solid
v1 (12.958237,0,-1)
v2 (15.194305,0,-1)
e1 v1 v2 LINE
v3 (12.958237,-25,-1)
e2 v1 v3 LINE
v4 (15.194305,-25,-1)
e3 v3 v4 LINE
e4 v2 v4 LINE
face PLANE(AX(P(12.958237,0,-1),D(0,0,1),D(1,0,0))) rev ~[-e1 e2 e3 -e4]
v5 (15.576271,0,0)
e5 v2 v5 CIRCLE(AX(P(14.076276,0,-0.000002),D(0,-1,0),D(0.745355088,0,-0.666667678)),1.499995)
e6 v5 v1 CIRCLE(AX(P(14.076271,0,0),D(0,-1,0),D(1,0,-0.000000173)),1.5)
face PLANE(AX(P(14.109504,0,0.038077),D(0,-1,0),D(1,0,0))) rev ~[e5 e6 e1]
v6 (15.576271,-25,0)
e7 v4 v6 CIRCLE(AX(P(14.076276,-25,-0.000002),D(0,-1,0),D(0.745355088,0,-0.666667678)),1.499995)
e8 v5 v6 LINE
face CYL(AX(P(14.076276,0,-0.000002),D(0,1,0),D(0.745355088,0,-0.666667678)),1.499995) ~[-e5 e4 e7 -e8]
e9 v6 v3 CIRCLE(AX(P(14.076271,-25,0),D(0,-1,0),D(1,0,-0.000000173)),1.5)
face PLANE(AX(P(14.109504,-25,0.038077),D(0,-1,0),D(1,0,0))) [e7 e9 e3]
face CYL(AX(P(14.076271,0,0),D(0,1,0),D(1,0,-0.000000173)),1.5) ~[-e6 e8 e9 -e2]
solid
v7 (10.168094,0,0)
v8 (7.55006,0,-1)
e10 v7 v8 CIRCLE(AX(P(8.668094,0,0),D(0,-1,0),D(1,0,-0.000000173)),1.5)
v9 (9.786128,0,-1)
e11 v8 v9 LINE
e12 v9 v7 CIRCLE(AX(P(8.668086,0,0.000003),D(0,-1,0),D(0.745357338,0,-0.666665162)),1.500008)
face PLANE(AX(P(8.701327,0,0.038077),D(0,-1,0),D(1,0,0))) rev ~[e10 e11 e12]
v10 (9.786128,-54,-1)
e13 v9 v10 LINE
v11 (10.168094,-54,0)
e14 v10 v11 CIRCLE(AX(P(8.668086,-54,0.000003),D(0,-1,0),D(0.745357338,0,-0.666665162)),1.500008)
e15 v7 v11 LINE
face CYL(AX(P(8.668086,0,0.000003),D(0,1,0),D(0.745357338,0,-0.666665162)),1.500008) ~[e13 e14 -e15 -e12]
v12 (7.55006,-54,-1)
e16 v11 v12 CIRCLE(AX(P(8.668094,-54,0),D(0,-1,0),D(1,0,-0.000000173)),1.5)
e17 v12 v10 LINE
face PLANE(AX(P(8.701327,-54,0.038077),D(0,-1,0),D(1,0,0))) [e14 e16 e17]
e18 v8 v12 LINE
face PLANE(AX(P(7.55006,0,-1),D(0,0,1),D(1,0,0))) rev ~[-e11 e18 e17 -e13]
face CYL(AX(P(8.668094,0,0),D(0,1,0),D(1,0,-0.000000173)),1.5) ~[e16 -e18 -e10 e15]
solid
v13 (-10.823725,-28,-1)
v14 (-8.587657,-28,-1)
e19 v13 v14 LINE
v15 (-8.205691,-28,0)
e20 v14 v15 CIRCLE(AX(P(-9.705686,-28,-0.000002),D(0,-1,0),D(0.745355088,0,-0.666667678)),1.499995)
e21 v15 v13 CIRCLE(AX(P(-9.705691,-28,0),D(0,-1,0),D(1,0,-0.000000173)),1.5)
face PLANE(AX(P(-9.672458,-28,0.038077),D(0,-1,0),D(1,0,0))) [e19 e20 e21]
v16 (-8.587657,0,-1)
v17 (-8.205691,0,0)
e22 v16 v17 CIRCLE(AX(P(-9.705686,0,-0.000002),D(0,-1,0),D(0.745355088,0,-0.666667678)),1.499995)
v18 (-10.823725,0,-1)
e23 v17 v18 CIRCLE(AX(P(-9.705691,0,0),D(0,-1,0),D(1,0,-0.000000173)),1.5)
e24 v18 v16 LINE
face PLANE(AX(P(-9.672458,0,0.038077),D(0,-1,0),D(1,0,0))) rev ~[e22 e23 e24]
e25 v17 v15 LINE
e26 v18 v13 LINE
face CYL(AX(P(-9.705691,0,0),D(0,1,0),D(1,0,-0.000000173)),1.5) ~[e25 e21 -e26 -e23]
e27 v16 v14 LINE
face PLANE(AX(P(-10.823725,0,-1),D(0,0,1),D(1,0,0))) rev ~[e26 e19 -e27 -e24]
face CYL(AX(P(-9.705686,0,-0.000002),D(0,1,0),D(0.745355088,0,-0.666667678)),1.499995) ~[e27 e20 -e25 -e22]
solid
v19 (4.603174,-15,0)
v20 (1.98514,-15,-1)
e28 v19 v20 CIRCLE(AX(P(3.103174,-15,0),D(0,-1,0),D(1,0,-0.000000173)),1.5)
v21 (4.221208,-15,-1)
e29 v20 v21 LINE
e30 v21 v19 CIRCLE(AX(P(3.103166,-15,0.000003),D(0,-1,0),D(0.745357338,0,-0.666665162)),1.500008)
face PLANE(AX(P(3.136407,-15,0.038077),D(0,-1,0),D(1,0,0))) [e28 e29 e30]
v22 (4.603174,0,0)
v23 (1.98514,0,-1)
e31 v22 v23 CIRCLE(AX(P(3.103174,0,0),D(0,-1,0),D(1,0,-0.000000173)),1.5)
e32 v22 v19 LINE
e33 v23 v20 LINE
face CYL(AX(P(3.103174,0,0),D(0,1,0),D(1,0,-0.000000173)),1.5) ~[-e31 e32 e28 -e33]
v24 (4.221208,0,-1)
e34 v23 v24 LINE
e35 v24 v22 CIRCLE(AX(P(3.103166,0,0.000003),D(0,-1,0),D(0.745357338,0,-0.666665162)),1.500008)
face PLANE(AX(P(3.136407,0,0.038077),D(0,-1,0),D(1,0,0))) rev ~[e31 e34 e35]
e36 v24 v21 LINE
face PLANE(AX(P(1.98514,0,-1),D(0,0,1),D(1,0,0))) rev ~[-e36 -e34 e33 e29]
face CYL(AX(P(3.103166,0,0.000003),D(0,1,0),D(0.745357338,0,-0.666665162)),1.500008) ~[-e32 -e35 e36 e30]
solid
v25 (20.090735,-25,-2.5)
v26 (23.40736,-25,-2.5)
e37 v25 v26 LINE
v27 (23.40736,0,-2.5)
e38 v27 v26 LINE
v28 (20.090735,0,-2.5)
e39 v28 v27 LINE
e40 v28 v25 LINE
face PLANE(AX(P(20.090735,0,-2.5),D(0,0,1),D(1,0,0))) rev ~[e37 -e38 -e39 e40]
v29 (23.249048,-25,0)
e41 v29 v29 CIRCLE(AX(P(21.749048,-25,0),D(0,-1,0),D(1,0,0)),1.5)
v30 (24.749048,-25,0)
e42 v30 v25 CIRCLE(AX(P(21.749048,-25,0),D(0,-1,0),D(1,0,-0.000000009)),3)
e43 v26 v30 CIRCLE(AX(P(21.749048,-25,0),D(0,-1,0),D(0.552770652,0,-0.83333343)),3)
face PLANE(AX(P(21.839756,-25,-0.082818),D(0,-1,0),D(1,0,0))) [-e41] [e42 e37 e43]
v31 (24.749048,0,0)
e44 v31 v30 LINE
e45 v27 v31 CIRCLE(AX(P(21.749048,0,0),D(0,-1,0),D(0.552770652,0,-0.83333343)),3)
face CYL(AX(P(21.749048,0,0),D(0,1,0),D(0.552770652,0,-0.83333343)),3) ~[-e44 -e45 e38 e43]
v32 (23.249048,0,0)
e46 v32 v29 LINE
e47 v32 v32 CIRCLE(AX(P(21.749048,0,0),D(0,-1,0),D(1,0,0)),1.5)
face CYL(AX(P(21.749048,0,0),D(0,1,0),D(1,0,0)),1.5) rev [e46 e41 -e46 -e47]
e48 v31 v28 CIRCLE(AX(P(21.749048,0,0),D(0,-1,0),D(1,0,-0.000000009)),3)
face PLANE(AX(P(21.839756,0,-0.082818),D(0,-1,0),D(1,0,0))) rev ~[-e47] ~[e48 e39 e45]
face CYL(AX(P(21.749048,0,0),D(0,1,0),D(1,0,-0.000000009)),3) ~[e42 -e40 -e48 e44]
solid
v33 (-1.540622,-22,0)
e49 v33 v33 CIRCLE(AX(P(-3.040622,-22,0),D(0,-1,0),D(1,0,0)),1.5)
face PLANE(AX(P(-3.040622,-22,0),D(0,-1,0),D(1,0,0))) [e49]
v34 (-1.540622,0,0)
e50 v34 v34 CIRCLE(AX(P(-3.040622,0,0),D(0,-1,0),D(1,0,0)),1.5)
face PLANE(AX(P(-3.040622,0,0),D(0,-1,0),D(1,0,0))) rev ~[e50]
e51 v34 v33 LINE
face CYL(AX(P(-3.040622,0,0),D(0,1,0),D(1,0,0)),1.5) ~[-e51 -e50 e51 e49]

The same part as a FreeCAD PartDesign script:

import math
import FreeCAD as App
import Part
import Sketcher

V = App.Vector

doc = App.newDocument("Part")
body = doc.addObject("PartDesign::Body", "Body")

# Sketch on XZ plane
sketch1 = doc.addObject("Sketcher::SketchObject", "Sketch")
body.addObject(sketch1)
sketch1.AttachmentSupport = (doc.XZ_Plane, [""])
sketch1.MapMode = "FlatFace"
sketch1.addGeometry([
    Part.ArcOfCircle(Part.Circle(V(-9.7, 0, 0), V(0, 0, 1), 1.5), math.radians(-42), math.radians(0)),
    Part.ArcOfCircle(Part.Circle(V(-9.7, 0, 0), V(0, 0, 1), 1.5), math.radians(0), math.radians(222)),
    Part.LineSegment(V(-10.8, -1, 0), V(-8.6, -1, 0)),
], False)
sketch1.addConstraint([
    Sketcher.Constraint("Tangent", 0, 2, 1, 1),
    Sketcher.Constraint("Coincident", 1, 2, 2, 1),
    Sketcher.Constraint("Coincident", 2, 2, 0, 1),
    Sketcher.Constraint("Horizontal", 2),
    Sketcher.Constraint("PointOnObject", 1, 3, -1),
    Sketcher.Constraint("PointOnObject", 0, 2, -1),
    Sketcher.Constraint("Radius", 1, 1.5),
    Sketcher.Constraint("DistanceY", 1, 2, -1, 1, 1.0),
    Sketcher.Constraint("Radius", 0, 1.499995),
    Sketcher.Constraint("DistanceX", 1, 3, -1, 1, 9.705691),
])
pad1 = doc.addObject("PartDesign::Pad", "Pad")
body.addObject(pad1)
pad1.Profile = sketch1
pad1.Length = 28
body2 = doc.addObject("PartDesign::Body", "Body001")

# Sketch on XZ plane
sketch2 = doc.addObject("Sketcher::SketchObject", "Sketch001")
body2.addObject(sketch2)
sketch2.AttachmentSupport = (doc.getObject("XZ_Plane001"), [""])
sketch2.MapMode = "FlatFace"
sketch2.addGeometry(Part.Circle(V(-3, 0, 0), V(0, 0, 1), 1.5), False)
sketch2.addConstraint([
    Sketcher.Constraint("PointOnObject", 0, 3, -1),
    Sketcher.Constraint("Diameter", 0, 3.0),
    Sketcher.Constraint("DistanceX", 0, 3, -1, 1, 3.040622),
])
pad2 = doc.addObject("PartDesign::Pad", "Pad001")
body2.addObject(pad2)
pad2.Profile = sketch2
pad2.Length = 22
body3 = doc.addObject("PartDesign::Body", "Body002")

# Sketch on XZ plane
sketch3 = doc.addObject("Sketcher::SketchObject", "Sketch002")
body3.addObject(sketch3)
sketch3.AttachmentSupport = (doc.getObject("XZ_Plane002"), [""])
sketch3.MapMode = "FlatFace"
sketch3.addGeometry([
    Part.ArcOfCircle(Part.Circle(V(3.1, 0, 0), V(0, 0, 1), 1.5), math.radians(0), math.radians(222)),
    Part.LineSegment(V(2, -1, 0), V(4.2, -1, 0)),
    Part.ArcOfCircle(Part.Circle(V(3.1, 0, 0), V(0, 0, 1), 1.5), math.radians(-42), math.radians(0)),
], False)
sketch3.addConstraint([
    Sketcher.Constraint("Coincident", 0, 2, 1, 1),
    Sketcher.Constraint("Coincident", 1, 2, 2, 1),
    Sketcher.Constraint("Tangent", 2, 2, 0, 1),
    Sketcher.Constraint("Horizontal", 1),
    Sketcher.Constraint("PointOnObject", 0, 3, -1),
    Sketcher.Constraint("PointOnObject", 2, 2, -1),
    Sketcher.Constraint("Radius", 0, 1.5),
    Sketcher.Constraint("DistanceY", 0, 2, -1, 1, 1.0),
    Sketcher.Constraint("Radius", 2, 1.500008),
    Sketcher.Constraint("DistanceX", -1, 1, 0, 2, 1.98514),
])
pad3 = doc.addObject("PartDesign::Pad", "Pad002")
body3.addObject(pad3)
pad3.Profile = sketch3
pad3.Length = 15
body4 = doc.addObject("PartDesign::Body", "Body003")

# Sketch on XZ plane
sketch4 = doc.addObject("Sketcher::SketchObject", "Sketch003")
body4.addObject(sketch4)
sketch4.AttachmentSupport = (doc.getObject("XZ_Plane003"), [""])
sketch4.MapMode = "FlatFace"
sketch4.addGeometry([
    Part.ArcOfCircle(Part.Circle(V(8.7, 0, 0), V(0, 0, 1), 1.5), math.radians(0), math.radians(222)),
    Part.LineSegment(V(7.6, -1, 0), V(9.8, -1, 0)),
    Part.ArcOfCircle(Part.Circle(V(8.7, 0, 0), V(0, 0, 1), 1.5), math.radians(-42), math.radians(0)),
], False)
sketch4.addConstraint([
    Sketcher.Constraint("Coincident", 0, 2, 1, 1),
    Sketcher.Constraint("Coincident", 1, 2, 2, 1),
    Sketcher.Constraint("Tangent", 2, 2, 0, 1),
    Sketcher.Constraint("Horizontal", 1),
    Sketcher.Constraint("PointOnObject", 0, 3, -1),
    Sketcher.Constraint("PointOnObject", 2, 2, -1),
    Sketcher.Constraint("Radius", 0, 1.5),
    Sketcher.Constraint("DistanceY", 0, 2, -1, 1, 1.0),
    Sketcher.Constraint("Radius", 2, 1.500008),
    Sketcher.Constraint("DistanceX", -1, 1, 0, 2, 7.55006),
])
pad4 = doc.addObject("PartDesign::Pad", "Pad003")
body4.addObject(pad4)
pad4.Profile = sketch4
pad4.Length = 54
body5 = doc.addObject("PartDesign::Body", "Body004")

# Sketch on XZ plane
sketch5 = doc.addObject("Sketcher::SketchObject", "Sketch004")
body5.addObject(sketch5)
sketch5.AttachmentSupport = (doc.getObject("XZ_Plane004"), [""])
sketch5.MapMode = "FlatFace"
sketch5.addGeometry([
    Part.ArcOfCircle(Part.Circle(V(14.1, 0, 0), V(0, 0, 1), 1.5), math.radians(-42), math.radians(0)),
    Part.ArcOfCircle(Part.Circle(V(14.1, 0, 0), V(0, 0, 1), 1.5), math.radians(0), math.radians(222)),
    Part.LineSegment(V(13, -1, 0), V(15.2, -1, 0)),
], False)
sketch5.addConstraint([
    Sketcher.Constraint("Tangent", 0, 2, 1, 1),
    Sketcher.Constraint("Coincident", 1, 2, 2, 1),
    Sketcher.Constraint("Coincident", 2, 2, 0, 1),
    Sketcher.Constraint("Horizontal", 2),
    Sketcher.Constraint("PointOnObject", 1, 3, -1),
    Sketcher.Constraint("PointOnObject", 0, 2, -1),
    Sketcher.Constraint("Radius", 1, 1.5),
    Sketcher.Constraint("DistanceY", 1, 2, -1, 1, 1.0),
    Sketcher.Constraint("Radius", 0, 1.499995),
    Sketcher.Constraint("DistanceX", -1, 1, 1, 3, 14.076271),
])
pad5 = doc.addObject("PartDesign::Pad", "Pad004")
body5.addObject(pad5)
pad5.Profile = sketch5
pad5.Length = 25
body6 = doc.addObject("PartDesign::Body", "Body005")

# Sketch on XZ plane
sketch6 = doc.addObject("Sketcher::SketchObject", "Sketch005")
body6.addObject(sketch6)
sketch6.AttachmentSupport = (doc.getObject("XZ_Plane005"), [""])
sketch6.MapMode = "FlatFace"
sketch6.addGeometry([
    Part.ArcOfCircle(Part.Circle(V(21.7, 0, 0), V(0, 0, 1), 3), math.radians(-56), math.radians(0)),
    Part.ArcOfCircle(Part.Circle(V(21.7, 0, 0), V(0, 0, 1), 3), math.radians(0), math.radians(236)),
    Part.LineSegment(V(20.1, -2.5, 0), V(23.4, -2.5, 0)),
    Part.Circle(V(21.7, 0, 0), V(0, 0, 1), 1.5),
], False)
sketch6.addConstraint([
    Sketcher.Constraint("Tangent", 0, 2, 1, 1),
    Sketcher.Constraint("Coincident", 1, 2, 2, 1),
    Sketcher.Constraint("Coincident", 2, 2, 0, 1),
    Sketcher.Constraint("Horizontal", 2),
    Sketcher.Constraint("Coincident", 3, 3, 0, 3),
    Sketcher.Constraint("Equal", 0, 1),
    Sketcher.Constraint("PointOnObject", 0, 3, -1),
    Sketcher.Constraint("PointOnObject", 0, 2, -1),
    Sketcher.Constraint("Diameter", 3, 3.0),
    Sketcher.Constraint("Radius", 0, 3.0),
    Sketcher.Constraint("DistanceY", 1, 2, -1, 1, 2.5),
    Sketcher.Constraint("DistanceX", -1, 1, 0, 3, 21.749048),
])
pad6 = doc.addObject("PartDesign::Pad", "Pad005")
body6.addObject(pad6)
pad6.Profile = sketch6
pad6.Length = 25

doc.recompute()
